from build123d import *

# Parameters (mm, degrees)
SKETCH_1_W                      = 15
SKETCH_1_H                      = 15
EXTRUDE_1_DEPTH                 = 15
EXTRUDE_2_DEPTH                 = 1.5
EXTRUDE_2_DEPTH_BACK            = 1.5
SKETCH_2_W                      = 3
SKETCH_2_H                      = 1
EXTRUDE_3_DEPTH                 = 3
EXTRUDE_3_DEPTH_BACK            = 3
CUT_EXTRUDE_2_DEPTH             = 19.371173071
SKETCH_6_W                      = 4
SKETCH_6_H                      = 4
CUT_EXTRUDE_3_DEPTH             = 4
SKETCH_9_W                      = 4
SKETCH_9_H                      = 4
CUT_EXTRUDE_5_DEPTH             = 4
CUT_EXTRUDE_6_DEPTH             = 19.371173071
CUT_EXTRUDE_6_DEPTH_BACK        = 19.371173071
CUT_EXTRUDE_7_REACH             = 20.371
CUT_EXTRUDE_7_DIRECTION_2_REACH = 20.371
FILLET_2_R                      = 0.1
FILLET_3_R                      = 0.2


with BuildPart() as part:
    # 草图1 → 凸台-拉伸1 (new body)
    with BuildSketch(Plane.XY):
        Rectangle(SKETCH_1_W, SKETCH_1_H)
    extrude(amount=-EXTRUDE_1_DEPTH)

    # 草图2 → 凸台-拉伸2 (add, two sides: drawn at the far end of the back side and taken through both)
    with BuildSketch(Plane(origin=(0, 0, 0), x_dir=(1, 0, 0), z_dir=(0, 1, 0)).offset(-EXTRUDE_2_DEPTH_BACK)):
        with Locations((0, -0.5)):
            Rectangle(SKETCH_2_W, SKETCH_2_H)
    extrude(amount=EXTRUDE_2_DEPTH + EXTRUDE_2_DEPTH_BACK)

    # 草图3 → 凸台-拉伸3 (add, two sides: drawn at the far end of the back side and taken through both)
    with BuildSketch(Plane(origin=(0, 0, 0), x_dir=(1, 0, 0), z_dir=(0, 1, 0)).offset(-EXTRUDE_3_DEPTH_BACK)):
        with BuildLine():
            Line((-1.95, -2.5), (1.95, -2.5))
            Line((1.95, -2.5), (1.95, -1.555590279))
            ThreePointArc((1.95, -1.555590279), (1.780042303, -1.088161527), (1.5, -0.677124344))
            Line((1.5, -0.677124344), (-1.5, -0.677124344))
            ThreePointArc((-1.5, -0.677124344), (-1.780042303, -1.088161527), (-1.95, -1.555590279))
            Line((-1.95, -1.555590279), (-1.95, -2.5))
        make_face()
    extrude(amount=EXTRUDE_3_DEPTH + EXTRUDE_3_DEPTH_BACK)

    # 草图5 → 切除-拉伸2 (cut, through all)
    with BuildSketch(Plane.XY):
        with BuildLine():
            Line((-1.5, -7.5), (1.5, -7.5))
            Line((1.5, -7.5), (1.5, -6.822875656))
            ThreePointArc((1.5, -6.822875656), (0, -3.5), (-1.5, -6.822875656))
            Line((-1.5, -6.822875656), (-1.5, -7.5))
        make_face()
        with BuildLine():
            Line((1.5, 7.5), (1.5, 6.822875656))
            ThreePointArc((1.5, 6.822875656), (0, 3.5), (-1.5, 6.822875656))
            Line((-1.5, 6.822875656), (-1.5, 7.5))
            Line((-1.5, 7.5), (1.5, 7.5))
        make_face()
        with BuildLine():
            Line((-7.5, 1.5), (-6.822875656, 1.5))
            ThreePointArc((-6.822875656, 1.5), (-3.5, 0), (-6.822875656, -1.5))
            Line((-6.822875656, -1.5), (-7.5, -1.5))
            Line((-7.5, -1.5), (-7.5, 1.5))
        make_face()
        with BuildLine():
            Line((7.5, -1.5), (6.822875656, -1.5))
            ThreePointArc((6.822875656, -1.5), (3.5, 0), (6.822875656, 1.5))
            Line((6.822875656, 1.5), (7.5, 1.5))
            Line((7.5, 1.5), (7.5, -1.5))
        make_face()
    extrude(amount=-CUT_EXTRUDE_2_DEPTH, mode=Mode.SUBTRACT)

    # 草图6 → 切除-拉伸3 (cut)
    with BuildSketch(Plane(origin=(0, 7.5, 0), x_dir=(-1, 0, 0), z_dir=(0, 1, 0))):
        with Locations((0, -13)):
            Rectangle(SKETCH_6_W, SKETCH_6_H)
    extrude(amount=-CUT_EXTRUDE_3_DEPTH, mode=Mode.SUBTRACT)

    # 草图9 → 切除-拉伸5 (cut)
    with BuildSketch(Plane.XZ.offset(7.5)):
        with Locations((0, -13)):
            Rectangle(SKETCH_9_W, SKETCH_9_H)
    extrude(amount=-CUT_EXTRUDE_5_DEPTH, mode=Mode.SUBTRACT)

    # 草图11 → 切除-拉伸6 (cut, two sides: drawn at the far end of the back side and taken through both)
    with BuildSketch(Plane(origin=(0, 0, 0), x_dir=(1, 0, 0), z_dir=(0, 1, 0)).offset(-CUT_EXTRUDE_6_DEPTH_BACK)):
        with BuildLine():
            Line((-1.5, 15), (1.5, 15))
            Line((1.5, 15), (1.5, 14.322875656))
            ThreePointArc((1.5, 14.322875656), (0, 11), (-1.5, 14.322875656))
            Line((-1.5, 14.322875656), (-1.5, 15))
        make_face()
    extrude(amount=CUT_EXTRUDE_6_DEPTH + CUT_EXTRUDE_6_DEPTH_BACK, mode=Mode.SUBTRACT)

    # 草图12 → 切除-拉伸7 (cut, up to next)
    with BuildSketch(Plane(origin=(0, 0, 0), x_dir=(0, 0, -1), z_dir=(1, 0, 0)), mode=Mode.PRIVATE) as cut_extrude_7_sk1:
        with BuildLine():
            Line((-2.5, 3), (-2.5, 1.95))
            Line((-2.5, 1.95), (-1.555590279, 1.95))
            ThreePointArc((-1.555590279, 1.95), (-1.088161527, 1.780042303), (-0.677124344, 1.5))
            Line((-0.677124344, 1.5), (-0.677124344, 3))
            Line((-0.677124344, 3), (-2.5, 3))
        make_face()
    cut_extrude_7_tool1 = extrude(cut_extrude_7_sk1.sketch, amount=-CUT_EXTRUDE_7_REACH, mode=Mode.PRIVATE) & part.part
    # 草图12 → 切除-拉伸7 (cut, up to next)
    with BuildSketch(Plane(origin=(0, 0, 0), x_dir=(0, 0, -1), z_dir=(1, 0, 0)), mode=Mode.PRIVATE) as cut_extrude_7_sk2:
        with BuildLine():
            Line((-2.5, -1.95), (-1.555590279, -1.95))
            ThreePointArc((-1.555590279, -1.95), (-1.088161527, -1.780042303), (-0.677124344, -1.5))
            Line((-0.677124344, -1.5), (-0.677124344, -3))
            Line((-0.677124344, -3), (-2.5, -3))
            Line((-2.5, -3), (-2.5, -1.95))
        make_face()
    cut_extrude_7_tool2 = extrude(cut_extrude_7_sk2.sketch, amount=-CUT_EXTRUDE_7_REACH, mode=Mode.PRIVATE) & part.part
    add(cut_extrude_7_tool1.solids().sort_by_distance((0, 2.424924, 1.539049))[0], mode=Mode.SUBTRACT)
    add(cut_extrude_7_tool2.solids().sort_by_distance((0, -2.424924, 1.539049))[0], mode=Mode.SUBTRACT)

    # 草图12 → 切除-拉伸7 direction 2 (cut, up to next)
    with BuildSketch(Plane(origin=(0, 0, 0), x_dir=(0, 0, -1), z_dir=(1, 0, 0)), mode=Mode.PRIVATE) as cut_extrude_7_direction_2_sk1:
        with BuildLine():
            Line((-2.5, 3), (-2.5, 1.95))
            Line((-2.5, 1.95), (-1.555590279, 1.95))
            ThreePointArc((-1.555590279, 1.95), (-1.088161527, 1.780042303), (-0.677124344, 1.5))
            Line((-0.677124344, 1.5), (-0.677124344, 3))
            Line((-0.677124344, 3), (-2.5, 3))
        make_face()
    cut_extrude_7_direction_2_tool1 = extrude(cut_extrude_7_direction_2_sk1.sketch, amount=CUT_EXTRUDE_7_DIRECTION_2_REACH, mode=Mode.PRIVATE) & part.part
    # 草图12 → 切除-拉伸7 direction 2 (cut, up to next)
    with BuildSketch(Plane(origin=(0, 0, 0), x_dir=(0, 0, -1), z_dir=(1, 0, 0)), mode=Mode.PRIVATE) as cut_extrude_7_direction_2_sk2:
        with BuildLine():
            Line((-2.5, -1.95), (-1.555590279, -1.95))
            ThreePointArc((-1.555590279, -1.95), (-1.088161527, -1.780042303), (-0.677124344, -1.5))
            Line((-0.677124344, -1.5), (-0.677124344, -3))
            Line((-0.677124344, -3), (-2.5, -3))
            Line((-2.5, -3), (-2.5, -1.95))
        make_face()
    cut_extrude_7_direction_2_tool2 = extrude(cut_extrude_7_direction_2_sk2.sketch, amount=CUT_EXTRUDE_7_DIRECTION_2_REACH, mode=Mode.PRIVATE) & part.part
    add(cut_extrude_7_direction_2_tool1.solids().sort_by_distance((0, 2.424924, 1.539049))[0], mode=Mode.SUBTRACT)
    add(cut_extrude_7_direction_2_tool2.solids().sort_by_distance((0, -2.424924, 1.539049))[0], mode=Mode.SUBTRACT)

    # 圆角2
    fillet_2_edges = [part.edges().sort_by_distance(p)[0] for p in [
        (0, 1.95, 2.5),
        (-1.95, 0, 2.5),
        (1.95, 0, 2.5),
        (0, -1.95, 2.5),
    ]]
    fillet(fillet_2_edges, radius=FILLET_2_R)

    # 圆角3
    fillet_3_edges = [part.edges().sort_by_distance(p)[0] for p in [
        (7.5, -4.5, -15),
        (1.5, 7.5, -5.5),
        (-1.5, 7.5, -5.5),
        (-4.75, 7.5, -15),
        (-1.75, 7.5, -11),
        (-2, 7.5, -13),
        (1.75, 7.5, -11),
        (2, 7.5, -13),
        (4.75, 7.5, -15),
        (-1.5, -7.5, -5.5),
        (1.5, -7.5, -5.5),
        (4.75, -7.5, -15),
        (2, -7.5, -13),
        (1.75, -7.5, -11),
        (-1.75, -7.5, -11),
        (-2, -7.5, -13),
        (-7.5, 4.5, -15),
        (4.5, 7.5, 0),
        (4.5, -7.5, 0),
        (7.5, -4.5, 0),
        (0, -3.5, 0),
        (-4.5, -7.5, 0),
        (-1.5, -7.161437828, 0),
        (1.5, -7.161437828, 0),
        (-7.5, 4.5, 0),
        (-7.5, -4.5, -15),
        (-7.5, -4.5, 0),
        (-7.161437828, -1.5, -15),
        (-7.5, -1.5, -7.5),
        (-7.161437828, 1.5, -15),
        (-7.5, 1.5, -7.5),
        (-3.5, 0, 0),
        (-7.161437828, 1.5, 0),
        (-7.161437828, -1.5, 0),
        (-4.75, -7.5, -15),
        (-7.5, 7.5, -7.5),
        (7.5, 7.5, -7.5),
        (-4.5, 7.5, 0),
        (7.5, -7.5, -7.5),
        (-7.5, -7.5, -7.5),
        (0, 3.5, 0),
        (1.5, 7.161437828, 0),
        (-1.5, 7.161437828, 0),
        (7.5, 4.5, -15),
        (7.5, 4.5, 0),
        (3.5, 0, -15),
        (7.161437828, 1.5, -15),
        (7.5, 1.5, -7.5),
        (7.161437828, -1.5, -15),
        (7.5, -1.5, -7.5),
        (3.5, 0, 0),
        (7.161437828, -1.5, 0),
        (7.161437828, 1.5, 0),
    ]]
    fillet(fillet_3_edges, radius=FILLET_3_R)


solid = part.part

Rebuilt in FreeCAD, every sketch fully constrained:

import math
import FreeCAD as App
import Part
import Sketcher

V = App.Vector
Q = App.Units.Quantity


def edges_at(feature, points):
    """Names of the edges that pass closest to the given points."""
    edges = feature.Shape.Edges
    near = lambda p: min(range(len(edges)), key=lambda i: edges[i].distToShape(Part.Vertex(*p))[0])
    return sorted({f"Edge{near(p) + 1}" for p in points})


def add_polygon(sketch, points):
    """Adds a closed chain of lines whose ends are joined by coincident constraints."""
    first, n = sketch.GeometryCount, len(points)
    for a, b in zip(points, points[1:] + points[:1]):
        sketch.addGeometry(Part.LineSegment(App.Vector(*a, 0), App.Vector(*b, 0)), False)
    for i in range(n):
        sketch.addConstraint(Sketcher.Constraint("Coincident", first + i, 2, first + (i + 1) % n, 1))

doc = App.newDocument("Part")
params = doc.addObject("Spreadsheet::Sheet", "Params")
for row, (alias, value) in enumerate([
    ("sketch1_width", "15 mm"),
    ("pad1_length", "15 mm"),
    ("sketch2_width", "3 mm"),
    ("sketch2_height", "1 mm"),
    ("pad2_length", "1.5 mm"),
    ("pad2_length2", "1.5 mm"),
    ("sketch3_radius", "2 mm"),
    ("sketch3_width", "3 mm"),
    ("sketch3_width2", "3.9 mm"),
    ("pad3_length", "3 mm"),
    ("pad3_length2", "3 mm"),
    ("sketch4_radius", "2 mm"),
    ("sketch4_width", "3 mm"),
    ("sketch5_width", "4 mm"),
    ("pocket2_length", "4 mm"),
    ("sketch6_width", "4 mm"),
    ("pocket3_length", "4 mm"),
    ("sketch7_radius", "2 mm"),
    ("sketch7_width", "3 mm"),
    ("sketch8_radius", "2 mm"),
    ("sketch8_width", "1.5 mm"),
    ("sketch8_width2", "1.05 mm"),
    ("sketch9_radius", "2 mm"),
    ("sketch9_width", "1.5 mm"),
    ("sketch9_width2", "1.05 mm"),
    ("sketch10_radius", "2 mm"),
    ("sketch10_width", "1.5 mm"),
    ("sketch10_width2", "1.05 mm"),
    ("sketch11_radius", "2 mm"),
    ("sketch11_width", "1.5 mm"),
    ("sketch11_width2", "1.05 mm"),
    ("fillet_radius", "0.1 mm"),
    ("fillet2_radius", "0.2 mm"),
], start=1):
    params.set(f"A{row}", alias)
    params.set(f"B{row}", "=" + value)
    params.setAlias(f"B{row}", alias)

body = doc.addObject("PartDesign::Body", "Body")

sketch1 = body.newObject("Sketcher::SketchObject", "Sketch")
sketch1.AttachmentSupport = (doc.getObject("XY_Plane"), [""])
sketch1.MapMode = "FlatFace"
add_polygon(sketch1, [(-8, 8), (-8, -8), (8, -8), (8, 8)])
sketch1.addConstraint(Sketcher.Constraint("Vertical", 0))
sketch1.addConstraint(Sketcher.Constraint("Horizontal", 1))
sketch1.addConstraint(Sketcher.Constraint("Vertical", 2))
sketch1.addConstraint(Sketcher.Constraint("Horizontal", 3))
sketch1.addConstraint(Sketcher.Constraint("Symmetric", 0, 2, 2, 2, -1, 1))
sketch1.addConstraint(Sketcher.Constraint("Equal", 3, 0))
sketch1.addConstraint(Sketcher.Constraint("DistanceX", 1, 1, 1, 2, Q("15 mm")))
sketch1.setExpression("Constraints[10]", "Params.sketch1_width")
pad1 = body.newObject("PartDesign::Pad", "Pad")
pad1.Profile = sketch1
pad1.setExpression("Length", "Params.pad1_length")
pad1.Reversed = True

sketch2 = body.newObject("Sketcher::SketchObject", "Sketch001")
sketch2.AttachmentSupport = (doc.getObject("XZ_Plane"), [""])
sketch2.MapMode = "FlatFace"
add_polygon(sketch2, [(-1.5, 0), (-1.5, 1), (1.5, 1), (1.5, 0)])
sketch2.addConstraint(Sketcher.Constraint("Vertical", 0))
sketch2.addConstraint(Sketcher.Constraint("Horizontal", 1))
sketch2.addConstraint(Sketcher.Constraint("Vertical", 2))
sketch2.addConstraint(Sketcher.Constraint("Horizontal", 3))
sketch2.addConstraint(Sketcher.Constraint("Symmetric", 2, 2, 3, 2, -1, 1))
sketch2.addConstraint(Sketcher.Constraint("DistanceX", 1, 1, 1, 2, Q("3 mm")))
sketch2.addConstraint(Sketcher.Constraint("DistanceY", 0, 1, 0, 2, Q("1 mm")))
sketch2.setExpression("Constraints[9]", "Params.sketch2_width")
sketch2.setExpression("Constraints[10]", "Params.sketch2_height")
pad2 = body.newObject("PartDesign::Pad", "Pad001")
pad2.Profile = sketch2
pad2.Type = "TwoLengths"
pad2.setExpression("Length", "Params.pad2_length")
pad2.setExpression("Length2", "Params.pad2_length2")
pad2.Reversed = True

sketch3 = body.newObject("Sketcher::SketchObject", "Sketch002")
sketch3.AttachmentSupport = (doc.getObject("XZ_Plane"), [""])
sketch3.MapMode = "FlatFace"
sketch3.addGeometry(Part.LineSegment(V(-1.9, 2.5, 0), V(1.9, 2.5, 0)), False)
sketch3.addGeometry(Part.LineSegment(V(1.9, 2.5, 0), V(1.9, 1.6, 0)), False)
sketch3.addGeometry(Part.ArcOfCircle(Part.Circle(V(0, 2, 0), V(0, 0, 1), 2), math.radians(-41), math.radians(-13)), False)
sketch3.addGeometry(Part.LineSegment(V(1.5, 0.7, 0), V(-1.5, 0.7, 0)), False)
sketch3.addGeometry(Part.ArcOfCircle(Part.Circle(V(0, 2, 0), V(0, 0, 1), 2), math.radians(-167), math.radians(-139)), False)
sketch3.addGeometry(Part.LineSegment(V(-1.9, 1.6, 0), V(-1.9, 2.5, 0)), False)
sketch3.addConstraint(Sketcher.Constraint("Coincident", 0, 2, 1, 1))
sketch3.addConstraint(Sketcher.Constraint("Coincident", 1, 2, 2, 2))
sketch3.addConstraint(Sketcher.Constraint("Coincident", 2, 1, 3, 1))
sketch3.addConstraint(Sketcher.Constraint("Coincident", 3, 2, 4, 2))
sketch3.addConstraint(Sketcher.Constraint("Coincident", 4, 1, 5, 1))
sketch3.addConstraint(Sketcher.Constraint("Coincident", 5, 2, 0, 1))
sketch3.addConstraint(Sketcher.Constraint("Horizontal", 0))
sketch3.addConstraint(Sketcher.Constraint("Vertical", 1))
sketch3.addConstraint(Sketcher.Constraint("Horizontal", 3))
sketch3.addConstraint(Sketcher.Constraint("Vertical", 5))
sketch3.addConstraint(Sketcher.Constraint("Coincident", 4, 3, 2, 3))
sketch3.addConstraint(Sketcher.Constraint("Equal", 2, 4))
sketch3.addConstraint(Sketcher.Constraint("Symmetric", 1, 2, 4, 1, -2))
sketch3.addConstraint(Sketcher.Constraint("Radius", 2, Q("2 mm")))
sketch3.addConstraint(Sketcher.Constraint("DistanceX", 3, 2, 3, 1, Q("3 mm")))
sketch3.addConstraint(Sketcher.Constraint("DistanceX", 0, 1, 0, 2, Q("3.9 mm")))
sketch3.addConstraint(Sketcher.Constraint("DistanceY", -1, 1, 2, 3, Q("2 mm")))
sketch3.addConstraint(Sketcher.Constraint("DistanceY", -1, 1, 0, 2, Q("2.5 mm")))
sketch3.setExpression("Constraints[13]", "Params.sketch3_radius")
sketch3.setExpression("Constraints[14]", "Params.sketch3_width")
sketch3.setExpression("Constraints[15]", "Params.sketch3_width2")
pad3 = body.newObject("PartDesign::Pad", "Pad002")
pad3.Profile = sketch3
pad3.Type = "TwoLengths"
pad3.setExpression("Length", "Params.pad3_length")
pad3.setExpression("Length2", "Params.pad3_length2")
pad3.Reversed = True

sketch4 = body.newObject("Sketcher::SketchObject", "Sketch003")
sketch4.AttachmentSupport = (doc.getObject("XY_Plane"), [""])
sketch4.MapMode = "FlatFace"
sketch4.addGeometry(Part.LineSegment(V(-1.5, -7.5, 0), V(1.5, -7.5, 0)), False)
sketch4.addGeometry(Part.LineSegment(V(1.5, -7.5, 0), V(1.5, -6.8, 0)), False)
sketch4.addGeometry(Part.ArcOfCircle(Part.Circle(V(0, -5.5, 0), V(0, 0, 1), 2), math.radians(-41), math.radians(221)), False)
sketch4.addGeometry(Part.LineSegment(V(-1.5, -6.8, 0), V(-1.5, -7.5, 0)), False)
sketch4.addGeometry(Part.LineSegment(V(1.5, 6.8, 0), V(1.5, 7.5, 0)), False)
sketch4.addGeometry(Part.LineSegment(V(1.5, 7.5, 0), V(-1.5, 7.5, 0)), False)
sketch4.addGeometry(Part.LineSegment(V(-1.5, 7.5, 0), V(-1.5, 6.8, 0)), False)
sketch4.addGeometry(Part.ArcOfCircle(Part.Circle(V(0, 5.5, 0), V(0, 0, 1), 2), math.radians(139), math.radians(401)), False)
sketch4.addGeometry(Part.LineSegment(V(-6.8, 1.5, 0), V(-7.5, 1.5, 0)), False)
sketch4.addGeometry(Part.LineSegment(V(-7.5, 1.5, 0), V(-7.5, -1.5, 0)), False)
sketch4.addGeometry(Part.LineSegment(V(-7.5, -1.5, 0), V(-6.8, -1.5, 0)), False)
sketch4.addGeometry(Part.ArcOfCircle(Part.Circle(V(-5.5, 0, 0), V(0, 0, 1), 2), math.radians(-131), math.radians(131)), False)
sketch4.addGeometry(Part.LineSegment(V(6.8, -1.5, 0), V(7.5, -1.5, 0)), False)
sketch4.addGeometry(Part.LineSegment(V(7.5, -1.5, 0), V(7.5, 1.5, 0)), False)
sketch4.addGeometry(Part.LineSegment(V(7.5, 1.5, 0), V(6.8, 1.5, 0)), False)
sketch4.addGeometry(Part.ArcOfCircle(Part.Circle(V(5.5, 0, 0), V(0, 0, 1), 2), math.radians(49), math.radians(311)), False)
sketch4.addConstraint(Sketcher.Constraint("Coincident", 0, 2, 1, 1))
sketch4.addConstraint(Sketcher.Constraint("Coincident", 1, 2, 2, 1))
sketch4.addConstraint(Sketcher.Constraint("Coincident", 2, 2, 3, 1))
sketch4.addConstraint(Sketcher.Constraint("Coincident", 3, 2, 0, 1))
sketch4.addConstraint(Sketcher.Constraint("Coincident", 4, 2, 5, 1))
sketch4.addConstraint(Sketcher.Constraint("Coincident", 5, 2, 6, 1))
sketch4.addConstraint(Sketcher.Constraint("Coincident", 6, 2, 7, 1))
sketch4.addConstraint(Sketcher.Constraint("Coincident", 7, 2, 4, 1))
sketch4.addConstraint(Sketcher.Constraint("Coincident", 8, 2, 9, 1))
sketch4.addConstraint(Sketcher.Constraint("Coincident", 9, 2, 10, 1))
sketch4.addConstraint(Sketcher.Constraint("Coincident", 10, 2, 11, 1))
sketch4.addConstraint(Sketcher.Constraint("Coincident", 11, 2, 8, 1))
sketch4.addConstraint(Sketcher.Constraint("Coincident", 12, 2, 13, 1))
sketch4.addConstraint(Sketcher.Constraint("Coincident", 13, 2, 14, 1))
sketch4.addConstraint(Sketcher.Constraint("Coincident", 14, 2, 15, 1))
sketch4.addConstraint(Sketcher.Constraint("Coincident", 15, 2, 12, 1))
sketch4.addConstraint(Sketcher.Constraint("Horizontal", 0))
sketch4.addConstraint(Sketcher.Constraint("Vertical", 1))
sketch4.addConstraint(Sketcher.Constraint("Vertical", 3))
sketch4.addConstraint(Sketcher.Constraint("Vertical", 4))
sketch4.addConstraint(Sketcher.Constraint("Horizontal", 5))
sketch4.addConstraint(Sketcher.Constraint("Vertical", 6))
sketch4.addConstraint(Sketcher.Constraint("Horizontal", 8))
sketch4.addConstraint(Sketcher.Constraint("Vertical", 9))
sketch4.addConstraint(Sketcher.Constraint("Horizontal", 10))
sketch4.addConstraint(Sketcher.Constraint("Horizontal", 12))
sketch4.addConstraint(Sketcher.Constraint("Vertical", 13))
sketch4.addConstraint(Sketcher.Constraint("Horizontal", 14))
sketch4.addConstraint(Sketcher.Constraint("Equal", 2, 7))
sketch4.addConstraint(Sketcher.Constraint("Equal", 7, 11))
sketch4.addConstraint(Sketcher.Constraint("Equal", 11, 15))
sketch4.addConstraint(Sketcher.Constraint("Symmetric", 2, 3, 7, 3, -1, 1))
sketch4.addConstraint(Sketcher.Constraint("Symmetric", 11, 3, 15, 3, -1, 1))
sketch4.addConstraint(Sketcher.Constraint("Symmetric", 3, 2, 4, 2, -1, 1))
sketch4.addConstraint(Sketcher.Constraint("Symmetric", 8, 2, 12, 2, -1, 1))
sketch4.addConstraint(Sketcher.Constraint("Symmetric", 1, 2, 2, 2, -2))
sketch4.addConstraint(Sketcher.Constraint("Symmetric", 11, 2, 14, 2, -2))
sketch4.addConstraint(Sketcher.Constraint("Horizontal", 6, 2, 7, 2))
sketch4.addConstraint(Sketcher.Constraint("Horizontal", 10, 2, 12, 2))
sketch4.addConstraint(Sketcher.Constraint("Equal", 14, 1))
sketch4.addConstraint(Sketcher.Constraint("Equal", 5, 9))
sketch4.addConstraint(Sketcher.Constraint("Radius", 2, Q("2 mm")))
sketch4.addConstraint(Sketcher.Constraint("DistanceX", 0, 1, 0, 2, Q("3 mm")))
sketch4.addConstraint(Sketcher.Constraint("DistanceY", 2, 3, 7, 3, Q("11 mm")))
sketch4.addConstraint(Sketcher.Constraint("DistanceX", 11, 3, 15, 3, Q("11 mm")))
sketch4.addConstraint(Sketcher.Constraint("DistanceY", 0, 2, 2, 3, Q("2 mm")))
sketch4.setExpression("Constraints[41]", "Params.sketch4_radius")
sketch4.setExpression("Constraints[42]", "Params.sketch4_width")
pocket1 = body.newObject("PartDesign::Pocket", "Pocket")
pocket1.Profile = sketch4
pocket1.Type = "ThroughAll"

sketch5 = body.newObject("Sketcher::SketchObject", "Sketch004")
sketch5.AttachmentSupport = (doc.getObject("XZ_Plane"), [""])
sketch5.MapMode = "FlatFace"
sketch5.AttachmentOffset = App.Placement(V(0, 0, -7.5), App.Rotation())
add_polygon(sketch5, [(2, -11), (2, -15), (-2, -15), (-2, -11)])
sketch5.addConstraint(Sketcher.Constraint("Vertical", 0))
sketch5.addConstraint(Sketcher.Constraint("Horizontal", 1))
sketch5.addConstraint(Sketcher.Constraint("Vertical", 2))
sketch5.addConstraint(Sketcher.Constraint("Horizontal", 3))
sketch5.addConstraint(Sketcher.Constraint("Equal", 3, 0))
sketch5.addConstraint(Sketcher.Constraint("DistanceX", 1, 2, 1, 1, Q("4 mm")))
sketch5.addConstraint(Sketcher.Constraint("DistanceX", -1, 1, 0, 2, Q("2 mm")))
sketch5.addConstraint(Sketcher.Constraint("DistanceY", 0, 2, -1, 1, Q("15 mm")))
sketch5.setExpression("Constraints[9]", "Params.sketch5_width")
pocket2 = body.newObject("PartDesign::Pocket", "Pocket001")
pocket2.Profile = sketch5
pocket2.setExpression("Length", "Params.pocket2_length")
pocket2.Reversed = True

sketch6 = body.newObject("Sketcher::SketchObject", "Sketch005")
sketch6.AttachmentSupport = (doc.getObject("XZ_Plane"), [""])
sketch6.MapMode = "FlatFace"
sketch6.AttachmentOffset = App.Placement(V(0, 0, 7.5), App.Rotation())
add_polygon(sketch6, [(-2, -11), (-2, -15), (2, -15), (2, -11)])
sketch6.addConstraint(Sketcher.Constraint("Vertical", 0))
sketch6.addConstraint(Sketcher.Constraint("Horizontal", 1))
sketch6.addConstraint(Sketcher.Constraint("Vertical", 2))
sketch6.addConstraint(Sketcher.Constraint("Horizontal", 3))
sketch6.addConstraint(Sketcher.Constraint("Equal", 3, 0))
sketch6.addConstraint(Sketcher.Constraint("DistanceX", 1, 1, 1, 2, Q("4 mm")))
sketch6.addConstraint(Sketcher.Constraint("DistanceX", 0, 2, -1, 1, Q("2 mm")))
sketch6.addConstraint(Sketcher.Constraint("DistanceY", 0, 2, -1, 1, Q("15 mm")))
sketch6.setExpression("Constraints[9]", "Params.sketch6_width")
pocket3 = body.newObject("PartDesign::Pocket", "Pocket002")
pocket3.Profile = sketch6
pocket3.setExpression("Length", "Params.pocket3_length")

sketch7 = body.newObject("Sketcher::SketchObject", "Sketch006")
sketch7.AttachmentSupport = (doc.getObject("XZ_Plane"), [""])
sketch7.MapMode = "FlatFace"
sketch7.addGeometry(Part.LineSegment(V(1.5, -15, 0), V(-1.5, -15, 0)), False)
sketch7.addGeometry(Part.LineSegment(V(-1.5, -15, 0), V(-1.5, -14.3, 0)), False)
sketch7.addGeometry(Part.ArcOfCircle(Part.Circle(V(0, -13, 0), V(0, 0, 1), 2), math.radians(-41), math.radians(221)), False)
sketch7.addGeometry(Part.LineSegment(V(1.5, -14.3, 0), V(1.5, -15, 0)), False)
sketch7.addConstraint(Sketcher.Constraint("Coincident", 0, 2, 1, 1))
sketch7.addConstraint(Sketcher.Constraint("Coincident", 1, 2, 2, 2))
sketch7.addConstraint(Sketcher.Constraint("Coincident", 2, 1, 3, 1))
sketch7.addConstraint(Sketcher.Constraint("Coincident", 3, 2, 0, 1))
sketch7.addConstraint(Sketcher.Constraint("Horizontal", 0))
sketch7.addConstraint(Sketcher.Constraint("Vertical", 1))
sketch7.addConstraint(Sketcher.Constraint("Vertical", 3))
sketch7.addConstraint(Sketcher.Constraint("Symmetric", 1, 2, 2, 1, -2))
sketch7.addConstraint(Sketcher.Constraint("Radius", 2, Q("2 mm")))
sketch7.addConstraint(Sketcher.Constraint("DistanceX", 0, 2, 0, 1, Q("3 mm")))
sketch7.addConstraint(Sketcher.Constraint("DistanceY", 2, 3, -1, 1, Q("13 mm")))
sketch7.addConstraint(Sketcher.Constraint("DistanceY", 0, 2, -1, 1, Q("15 mm")))
sketch7.setExpression("Constraints[8]", "Params.sketch7_radius")
sketch7.setExpression("Constraints[9]", "Params.sketch7_width")
pocket4 = body.newObject("PartDesign::Pocket", "Pocket003")
pocket4.Profile = sketch7
pocket4.Type = "ThroughAll"
pocket4.Midplane = True

sketch8 = body.newObject("Sketcher::SketchObject", "Sketch007")
sketch8.AttachmentSupport = (doc.getObject("YZ_Plane"), [""])
sketch8.MapMode = "FlatFace"
sketch8.addGeometry(Part.LineSegment(V(3, 2.5, 0), V(1.9, 2.5, 0)), False)
sketch8.addGeometry(Part.LineSegment(V(1.9, 2.5, 0), V(1.9, 1.6, 0)), False)
sketch8.addGeometry(Part.ArcOfCircle(Part.Circle(V(0, 2, 0), V(0, 0, 1), 2), math.radians(-41), math.radians(-13)), False)
sketch8.addGeometry(Part.LineSegment(V(1.5, 0.7, 0), V(3, 0.7, 0)), False)
sketch8.addGeometry(Part.LineSegment(V(3, 0.7, 0), V(3, 2.5, 0)), False)
sketch8.addConstraint(Sketcher.Constraint("Coincident", 0, 2, 1, 1))
sketch8.addConstraint(Sketcher.Constraint("Coincident", 1, 2, 2, 2))
sketch8.addConstraint(Sketcher.Constraint("Coincident", 2, 1, 3, 1))
sketch8.addConstraint(Sketcher.Constraint("Coincident", 3, 2, 4, 1))
sketch8.addConstraint(Sketcher.Constraint("Coincident", 4, 2, 0, 1))
sketch8.addConstraint(Sketcher.Constraint("Horizontal", 0))
sketch8.addConstraint(Sketcher.Constraint("Vertical", 1))
sketch8.addConstraint(Sketcher.Constraint("Horizontal", 3))
sketch8.addConstraint(Sketcher.Constraint("Vertical", 4))
sketch8.addConstraint(Sketcher.Constraint("PointOnObject", 2, 3, -2))
sketch8.addConstraint(Sketcher.Constraint("Radius", 2, Q("2 mm")))
sketch8.addConstraint(Sketcher.Constraint("DistanceX", 3, 1, 3, 2, Q("1.5 mm")))
sketch8.addConstraint(Sketcher.Constraint("DistanceY", -1, 1, 2, 3, Q("2 mm")))
sketch8.addConstraint(Sketcher.Constraint("DistanceX", -1, 1, 3, 2, Q("3 mm")))
sketch8.addConstraint(Sketcher.Constraint("DistanceX", 0, 2, 0, 1, Q("1.05 mm")))
sketch8.addConstraint(Sketcher.Constraint("DistanceY", -1, 1, 0, 2, Q("2.5 mm")))
sketch8.setExpression("Constraints[10]", "Params.sketch8_radius")
sketch8.setExpression("Constraints[11]", "Params.sketch8_width")
sketch8.setExpression("Constraints[14]", "Params.sketch8_width2")
pocket5 = body.newObject("PartDesign::Pocket", "Pocket004")
pocket5.Profile = sketch8
pocket5.Type = "UpToFirst"

sketch9 = body.newObject("Sketcher::SketchObject", "Sketch008")
sketch9.AttachmentSupport = (doc.getObject("YZ_Plane"), [""])
sketch9.MapMode = "FlatFace"
sketch9.addGeometry(Part.LineSegment(V(-1.9, 1.6, 0), V(-1.9, 2.5, 0)), False)
sketch9.addGeometry(Part.LineSegment(V(-1.9, 2.5, 0), V(-3, 2.5, 0)), False)
sketch9.addGeometry(Part.LineSegment(V(-3, 2.5, 0), V(-3, 0.7, 0)), False)
sketch9.addGeometry(Part.LineSegment(V(-3, 0.7, 0), V(-1.5, 0.7, 0)), False)
sketch9.addGeometry(Part.ArcOfCircle(Part.Circle(V(0, 2, 0), V(0, 0, 1), 2), math.radians(-167), math.radians(-139)), False)
sketch9.addConstraint(Sketcher.Constraint("Coincident", 0, 2, 1, 1))
sketch9.addConstraint(Sketcher.Constraint("Coincident", 1, 2, 2, 1))
sketch9.addConstraint(Sketcher.Constraint("Coincident", 2, 2, 3, 1))
sketch9.addConstraint(Sketcher.Constraint("Coincident", 3, 2, 4, 2))
sketch9.addConstraint(Sketcher.Constraint("Coincident", 4, 1, 0, 1))
sketch9.addConstraint(Sketcher.Constraint("Vertical", 0))
sketch9.addConstraint(Sketcher.Constraint("Horizontal", 1))
sketch9.addConstraint(Sketcher.Constraint("Vertical", 2))
sketch9.addConstraint(Sketcher.Constraint("Horizontal", 3))
sketch9.addConstraint(Sketcher.Constraint("PointOnObject", 4, 3, -2))
sketch9.addConstraint(Sketcher.Constraint("Radius", 4, Q("2 mm")))
sketch9.addConstraint(Sketcher.Constraint("DistanceX", 3, 1, 3, 2, Q("1.5 mm")))
sketch9.addConstraint(Sketcher.Constraint("DistanceY", -1, 1, 4, 3, Q("2 mm")))
sketch9.addConstraint(Sketcher.Constraint("DistanceX", 1, 2, -1, 1, Q("3 mm")))
sketch9.addConstraint(Sketcher.Constraint("DistanceX", 1, 2, 1, 1, Q("1.05 mm")))
sketch9.addConstraint(Sketcher.Constraint("DistanceY", -1, 1, 0, 2, Q("2.5 mm")))
sketch9.setExpression("Constraints[10]", "Params.sketch9_radius")
sketch9.setExpression("Constraints[11]", "Params.sketch9_width")
sketch9.setExpression("Constraints[14]", "Params.sketch9_width2")
pocket6 = body.newObject("PartDesign::Pocket", "Pocket005")
pocket6.Profile = sketch9
pocket6.Type = "UpToFirst"

sketch10 = body.newObject("Sketcher::SketchObject", "Sketch009")
sketch10.AttachmentSupport = (doc.getObject("YZ_Plane"), [""])
sketch10.MapMode = "FlatFace"
sketch10.addGeometry(Part.LineSegment(V(3, 2.5, 0), V(1.9, 2.5, 0)), False)
sketch10.addGeometry(Part.LineSegment(V(1.9, 2.5, 0), V(1.9, 1.6, 0)), False)
sketch10.addGeometry(Part.ArcOfCircle(Part.Circle(V(0, 2, 0), V(0, 0, 1), 2), math.radians(-41), math.radians(-13)), False)
sketch10.addGeometry(Part.LineSegment(V(1.5, 0.7, 0), V(3, 0.7, 0)), False)
sketch10.addGeometry(Part.LineSegment(V(3, 0.7, 0), V(3, 2.5, 0)), False)
sketch10.addConstraint(Sketcher.Constraint("Coincident", 0, 2, 1, 1))
sketch10.addConstraint(Sketcher.Constraint("Coincident", 1, 2, 2, 2))
sketch10.addConstraint(Sketcher.Constraint("Coincident", 2, 1, 3, 1))
sketch10.addConstraint(Sketcher.Constraint("Coincident", 3, 2, 4, 1))
sketch10.addConstraint(Sketcher.Constraint("Coincident", 4, 2, 0, 1))
sketch10.addConstraint(Sketcher.Constraint("Horizontal", 0))
sketch10.addConstraint(Sketcher.Constraint("Vertical", 1))
sketch10.addConstraint(Sketcher.Constraint("Horizontal", 3))
sketch10.addConstraint(Sketcher.Constraint("Vertical", 4))
sketch10.addConstraint(Sketcher.Constraint("PointOnObject", 2, 3, -2))
sketch10.addConstraint(Sketcher.Constraint("Radius", 2, Q("2 mm")))
sketch10.addConstraint(Sketcher.Constraint("DistanceX", 3, 1, 3, 2, Q("1.5 mm")))
sketch10.addConstraint(Sketcher.Constraint("DistanceY", -1, 1, 2, 3, Q("2 mm")))
sketch10.addConstraint(Sketcher.Constraint("DistanceX", -1, 1, 3, 2, Q("3 mm")))
sketch10.addConstraint(Sketcher.Constraint("DistanceX", 0, 2, 0, 1, Q("1.05 mm")))
sketch10.addConstraint(Sketcher.Constraint("DistanceY", -1, 1, 0, 2, Q("2.5 mm")))
sketch10.setExpression("Constraints[10]", "Params.sketch10_radius")
sketch10.setExpression("Constraints[11]", "Params.sketch10_width")
sketch10.setExpression("Constraints[14]", "Params.sketch10_width2")
pocket7 = body.newObject("PartDesign::Pocket", "Pocket006")
pocket7.Profile = sketch10
pocket7.Type = "UpToFirst"
pocket7.Reversed = True

sketch11 = body.newObject("Sketcher::SketchObject", "Sketch010")
sketch11.AttachmentSupport = (doc.getObject("YZ_Plane"), [""])
sketch11.MapMode = "FlatFace"
sketch11.addGeometry(Part.LineSegment(V(-1.9, 1.6, 0), V(-1.9, 2.5, 0)), False)
sketch11.addGeometry(Part.LineSegment(V(-1.9, 2.5, 0), V(-3, 2.5, 0)), False)
sketch11.addGeometry(Part.LineSegment(V(-3, 2.5, 0), V(-3, 0.7, 0)), False)
sketch11.addGeometry(Part.LineSegment(V(-3, 0.7, 0), V(-1.5, 0.7, 0)), False)
sketch11.addGeometry(Part.ArcOfCircle(Part.Circle(V(0, 2, 0), V(0, 0, 1), 2), math.radians(-167), math.radians(-139)), False)
sketch11.addConstraint(Sketcher.Constraint("Coincident", 0, 2, 1, 1))
sketch11.addConstraint(Sketcher.Constraint("Coincident", 1, 2, 2, 1))
sketch11.addConstraint(Sketcher.Constraint("Coincident", 2, 2, 3, 1))
sketch11.addConstraint(Sketcher.Constraint("Coincident", 3, 2, 4, 2))
sketch11.addConstraint(Sketcher.Constraint("Coincident", 4, 1, 0, 1))
sketch11.addConstraint(Sketcher.Constraint("Vertical", 0))
sketch11.addConstraint(Sketcher.Constraint("Horizontal", 1))
sketch11.addConstraint(Sketcher.Constraint("Vertical", 2))
sketch11.addConstraint(Sketcher.Constraint("Horizontal", 3))
sketch11.addConstraint(Sketcher.Constraint("PointOnObject", 4, 3, -2))
sketch11.addConstraint(Sketcher.Constraint("Radius", 4, Q("2 mm")))
sketch11.addConstraint(Sketcher.Constraint("DistanceX", 3, 1, 3, 2, Q("1.5 mm")))
sketch11.addConstraint(Sketcher.Constraint("DistanceY", -1, 1, 4, 3, Q("2 mm")))
sketch11.addConstraint(Sketcher.Constraint("DistanceX", 1, 2, -1, 1, Q("3 mm")))
sketch11.addConstraint(Sketcher.Constraint("DistanceX", 1, 2, 1, 1, Q("1.05 mm")))
sketch11.addConstraint(Sketcher.Constraint("DistanceY", -1, 1, 0, 2, Q("2.5 mm")))
sketch11.setExpression("Constraints[10]", "Params.sketch11_radius")
sketch11.setExpression("Constraints[11]", "Params.sketch11_width")
sketch11.setExpression("Constraints[14]", "Params.sketch11_width2")
pocket8 = body.newObject("PartDesign::Pocket", "Pocket007")
pocket8.Profile = sketch11
pocket8.Type = "UpToFirst"
pocket8.Reversed = True
doc.recompute()

fillet = body.newObject("PartDesign::Fillet", "Fillet")
fillet.Base = (pocket8, edges_at(pocket8, [
    (0, 1.95, 2.5),
    (-1.95, 0, 2.5),
    (1.95, 0, 2.5),
    (0, -1.95, 2.5),
]))
fillet.setExpression("Radius", "Params.fillet_radius")
doc.recompute()

fillet2 = body.newObject("PartDesign::Fillet", "Fillet001")
fillet2.Base = (fillet, edges_at(fillet, [
    (7.5, -4.5, -15),
    (1.5, 7.5, -5.5),
    (-1.5, 7.5, -5.5),
    (-4.75, 7.5, -15),
    (-1.75, 7.5, -11),
    (-2, 7.5, -13),
    (1.75, 7.5, -11),
    (2, 7.5, -13),
    (4.75, 7.5, -15),
    (-1.5, -7.5, -5.5),
    (1.5, -7.5, -5.5),
    (4.75, -7.5, -15),
    (2, -7.5, -13),
    (1.75, -7.5, -11),
    (-1.75, -7.5, -11),
    (-2, -7.5, -13),
    (-7.5, 4.5, -15),
    (4.5, 7.5, 0),
    (4.5, -7.5, 0),
    (7.5, -4.5, 0),
    (0, -3.5, 0),
    (-4.5, -7.5, 0),
    (-1.5, -7.161, 0),
    (1.5, -7.161, 0),
    (-7.5, 4.5, 0),
    (-7.5, -4.5, -15),
    (-7.5, -4.5, 0),
    (-7.161, -1.5, -15),
    (-7.5, -1.5, -7.5),
    (-7.161, 1.5, -15),
    (-7.5, 1.5, -7.5),
    (-3.5, 0, 0),
    (-7.161, 1.5, 0),
    (-7.161, -1.5, 0),
    (-4.75, -7.5, -15),
    (-7.5, 7.5, -7.5),
    (7.5, 7.5, -7.5),
    (-4.5, 7.5, 0),
    (7.5, -7.5, -7.5),
    (-7.5, -7.5, -7.5),
    (0, 3.5, 0),
    (1.5, 7.161, 0),
    (-1.5, 7.161, 0),
    (7.5, 4.5, -15),
    (7.5, 4.5, 0),
    (3.5, 0, -15),
    (7.161, 1.5, -15),
    (7.5, 1.5, -7.5),
    (7.161, -1.5, -15),
    (7.5, -1.5, -7.5),
    (3.5, 0, 0),
    (7.161, -1.5, 0),
    (7.161, 1.5, 0),
]))
fillet2.setExpression("Radius", "Params.fillet2_radius")

doc.recompute()
